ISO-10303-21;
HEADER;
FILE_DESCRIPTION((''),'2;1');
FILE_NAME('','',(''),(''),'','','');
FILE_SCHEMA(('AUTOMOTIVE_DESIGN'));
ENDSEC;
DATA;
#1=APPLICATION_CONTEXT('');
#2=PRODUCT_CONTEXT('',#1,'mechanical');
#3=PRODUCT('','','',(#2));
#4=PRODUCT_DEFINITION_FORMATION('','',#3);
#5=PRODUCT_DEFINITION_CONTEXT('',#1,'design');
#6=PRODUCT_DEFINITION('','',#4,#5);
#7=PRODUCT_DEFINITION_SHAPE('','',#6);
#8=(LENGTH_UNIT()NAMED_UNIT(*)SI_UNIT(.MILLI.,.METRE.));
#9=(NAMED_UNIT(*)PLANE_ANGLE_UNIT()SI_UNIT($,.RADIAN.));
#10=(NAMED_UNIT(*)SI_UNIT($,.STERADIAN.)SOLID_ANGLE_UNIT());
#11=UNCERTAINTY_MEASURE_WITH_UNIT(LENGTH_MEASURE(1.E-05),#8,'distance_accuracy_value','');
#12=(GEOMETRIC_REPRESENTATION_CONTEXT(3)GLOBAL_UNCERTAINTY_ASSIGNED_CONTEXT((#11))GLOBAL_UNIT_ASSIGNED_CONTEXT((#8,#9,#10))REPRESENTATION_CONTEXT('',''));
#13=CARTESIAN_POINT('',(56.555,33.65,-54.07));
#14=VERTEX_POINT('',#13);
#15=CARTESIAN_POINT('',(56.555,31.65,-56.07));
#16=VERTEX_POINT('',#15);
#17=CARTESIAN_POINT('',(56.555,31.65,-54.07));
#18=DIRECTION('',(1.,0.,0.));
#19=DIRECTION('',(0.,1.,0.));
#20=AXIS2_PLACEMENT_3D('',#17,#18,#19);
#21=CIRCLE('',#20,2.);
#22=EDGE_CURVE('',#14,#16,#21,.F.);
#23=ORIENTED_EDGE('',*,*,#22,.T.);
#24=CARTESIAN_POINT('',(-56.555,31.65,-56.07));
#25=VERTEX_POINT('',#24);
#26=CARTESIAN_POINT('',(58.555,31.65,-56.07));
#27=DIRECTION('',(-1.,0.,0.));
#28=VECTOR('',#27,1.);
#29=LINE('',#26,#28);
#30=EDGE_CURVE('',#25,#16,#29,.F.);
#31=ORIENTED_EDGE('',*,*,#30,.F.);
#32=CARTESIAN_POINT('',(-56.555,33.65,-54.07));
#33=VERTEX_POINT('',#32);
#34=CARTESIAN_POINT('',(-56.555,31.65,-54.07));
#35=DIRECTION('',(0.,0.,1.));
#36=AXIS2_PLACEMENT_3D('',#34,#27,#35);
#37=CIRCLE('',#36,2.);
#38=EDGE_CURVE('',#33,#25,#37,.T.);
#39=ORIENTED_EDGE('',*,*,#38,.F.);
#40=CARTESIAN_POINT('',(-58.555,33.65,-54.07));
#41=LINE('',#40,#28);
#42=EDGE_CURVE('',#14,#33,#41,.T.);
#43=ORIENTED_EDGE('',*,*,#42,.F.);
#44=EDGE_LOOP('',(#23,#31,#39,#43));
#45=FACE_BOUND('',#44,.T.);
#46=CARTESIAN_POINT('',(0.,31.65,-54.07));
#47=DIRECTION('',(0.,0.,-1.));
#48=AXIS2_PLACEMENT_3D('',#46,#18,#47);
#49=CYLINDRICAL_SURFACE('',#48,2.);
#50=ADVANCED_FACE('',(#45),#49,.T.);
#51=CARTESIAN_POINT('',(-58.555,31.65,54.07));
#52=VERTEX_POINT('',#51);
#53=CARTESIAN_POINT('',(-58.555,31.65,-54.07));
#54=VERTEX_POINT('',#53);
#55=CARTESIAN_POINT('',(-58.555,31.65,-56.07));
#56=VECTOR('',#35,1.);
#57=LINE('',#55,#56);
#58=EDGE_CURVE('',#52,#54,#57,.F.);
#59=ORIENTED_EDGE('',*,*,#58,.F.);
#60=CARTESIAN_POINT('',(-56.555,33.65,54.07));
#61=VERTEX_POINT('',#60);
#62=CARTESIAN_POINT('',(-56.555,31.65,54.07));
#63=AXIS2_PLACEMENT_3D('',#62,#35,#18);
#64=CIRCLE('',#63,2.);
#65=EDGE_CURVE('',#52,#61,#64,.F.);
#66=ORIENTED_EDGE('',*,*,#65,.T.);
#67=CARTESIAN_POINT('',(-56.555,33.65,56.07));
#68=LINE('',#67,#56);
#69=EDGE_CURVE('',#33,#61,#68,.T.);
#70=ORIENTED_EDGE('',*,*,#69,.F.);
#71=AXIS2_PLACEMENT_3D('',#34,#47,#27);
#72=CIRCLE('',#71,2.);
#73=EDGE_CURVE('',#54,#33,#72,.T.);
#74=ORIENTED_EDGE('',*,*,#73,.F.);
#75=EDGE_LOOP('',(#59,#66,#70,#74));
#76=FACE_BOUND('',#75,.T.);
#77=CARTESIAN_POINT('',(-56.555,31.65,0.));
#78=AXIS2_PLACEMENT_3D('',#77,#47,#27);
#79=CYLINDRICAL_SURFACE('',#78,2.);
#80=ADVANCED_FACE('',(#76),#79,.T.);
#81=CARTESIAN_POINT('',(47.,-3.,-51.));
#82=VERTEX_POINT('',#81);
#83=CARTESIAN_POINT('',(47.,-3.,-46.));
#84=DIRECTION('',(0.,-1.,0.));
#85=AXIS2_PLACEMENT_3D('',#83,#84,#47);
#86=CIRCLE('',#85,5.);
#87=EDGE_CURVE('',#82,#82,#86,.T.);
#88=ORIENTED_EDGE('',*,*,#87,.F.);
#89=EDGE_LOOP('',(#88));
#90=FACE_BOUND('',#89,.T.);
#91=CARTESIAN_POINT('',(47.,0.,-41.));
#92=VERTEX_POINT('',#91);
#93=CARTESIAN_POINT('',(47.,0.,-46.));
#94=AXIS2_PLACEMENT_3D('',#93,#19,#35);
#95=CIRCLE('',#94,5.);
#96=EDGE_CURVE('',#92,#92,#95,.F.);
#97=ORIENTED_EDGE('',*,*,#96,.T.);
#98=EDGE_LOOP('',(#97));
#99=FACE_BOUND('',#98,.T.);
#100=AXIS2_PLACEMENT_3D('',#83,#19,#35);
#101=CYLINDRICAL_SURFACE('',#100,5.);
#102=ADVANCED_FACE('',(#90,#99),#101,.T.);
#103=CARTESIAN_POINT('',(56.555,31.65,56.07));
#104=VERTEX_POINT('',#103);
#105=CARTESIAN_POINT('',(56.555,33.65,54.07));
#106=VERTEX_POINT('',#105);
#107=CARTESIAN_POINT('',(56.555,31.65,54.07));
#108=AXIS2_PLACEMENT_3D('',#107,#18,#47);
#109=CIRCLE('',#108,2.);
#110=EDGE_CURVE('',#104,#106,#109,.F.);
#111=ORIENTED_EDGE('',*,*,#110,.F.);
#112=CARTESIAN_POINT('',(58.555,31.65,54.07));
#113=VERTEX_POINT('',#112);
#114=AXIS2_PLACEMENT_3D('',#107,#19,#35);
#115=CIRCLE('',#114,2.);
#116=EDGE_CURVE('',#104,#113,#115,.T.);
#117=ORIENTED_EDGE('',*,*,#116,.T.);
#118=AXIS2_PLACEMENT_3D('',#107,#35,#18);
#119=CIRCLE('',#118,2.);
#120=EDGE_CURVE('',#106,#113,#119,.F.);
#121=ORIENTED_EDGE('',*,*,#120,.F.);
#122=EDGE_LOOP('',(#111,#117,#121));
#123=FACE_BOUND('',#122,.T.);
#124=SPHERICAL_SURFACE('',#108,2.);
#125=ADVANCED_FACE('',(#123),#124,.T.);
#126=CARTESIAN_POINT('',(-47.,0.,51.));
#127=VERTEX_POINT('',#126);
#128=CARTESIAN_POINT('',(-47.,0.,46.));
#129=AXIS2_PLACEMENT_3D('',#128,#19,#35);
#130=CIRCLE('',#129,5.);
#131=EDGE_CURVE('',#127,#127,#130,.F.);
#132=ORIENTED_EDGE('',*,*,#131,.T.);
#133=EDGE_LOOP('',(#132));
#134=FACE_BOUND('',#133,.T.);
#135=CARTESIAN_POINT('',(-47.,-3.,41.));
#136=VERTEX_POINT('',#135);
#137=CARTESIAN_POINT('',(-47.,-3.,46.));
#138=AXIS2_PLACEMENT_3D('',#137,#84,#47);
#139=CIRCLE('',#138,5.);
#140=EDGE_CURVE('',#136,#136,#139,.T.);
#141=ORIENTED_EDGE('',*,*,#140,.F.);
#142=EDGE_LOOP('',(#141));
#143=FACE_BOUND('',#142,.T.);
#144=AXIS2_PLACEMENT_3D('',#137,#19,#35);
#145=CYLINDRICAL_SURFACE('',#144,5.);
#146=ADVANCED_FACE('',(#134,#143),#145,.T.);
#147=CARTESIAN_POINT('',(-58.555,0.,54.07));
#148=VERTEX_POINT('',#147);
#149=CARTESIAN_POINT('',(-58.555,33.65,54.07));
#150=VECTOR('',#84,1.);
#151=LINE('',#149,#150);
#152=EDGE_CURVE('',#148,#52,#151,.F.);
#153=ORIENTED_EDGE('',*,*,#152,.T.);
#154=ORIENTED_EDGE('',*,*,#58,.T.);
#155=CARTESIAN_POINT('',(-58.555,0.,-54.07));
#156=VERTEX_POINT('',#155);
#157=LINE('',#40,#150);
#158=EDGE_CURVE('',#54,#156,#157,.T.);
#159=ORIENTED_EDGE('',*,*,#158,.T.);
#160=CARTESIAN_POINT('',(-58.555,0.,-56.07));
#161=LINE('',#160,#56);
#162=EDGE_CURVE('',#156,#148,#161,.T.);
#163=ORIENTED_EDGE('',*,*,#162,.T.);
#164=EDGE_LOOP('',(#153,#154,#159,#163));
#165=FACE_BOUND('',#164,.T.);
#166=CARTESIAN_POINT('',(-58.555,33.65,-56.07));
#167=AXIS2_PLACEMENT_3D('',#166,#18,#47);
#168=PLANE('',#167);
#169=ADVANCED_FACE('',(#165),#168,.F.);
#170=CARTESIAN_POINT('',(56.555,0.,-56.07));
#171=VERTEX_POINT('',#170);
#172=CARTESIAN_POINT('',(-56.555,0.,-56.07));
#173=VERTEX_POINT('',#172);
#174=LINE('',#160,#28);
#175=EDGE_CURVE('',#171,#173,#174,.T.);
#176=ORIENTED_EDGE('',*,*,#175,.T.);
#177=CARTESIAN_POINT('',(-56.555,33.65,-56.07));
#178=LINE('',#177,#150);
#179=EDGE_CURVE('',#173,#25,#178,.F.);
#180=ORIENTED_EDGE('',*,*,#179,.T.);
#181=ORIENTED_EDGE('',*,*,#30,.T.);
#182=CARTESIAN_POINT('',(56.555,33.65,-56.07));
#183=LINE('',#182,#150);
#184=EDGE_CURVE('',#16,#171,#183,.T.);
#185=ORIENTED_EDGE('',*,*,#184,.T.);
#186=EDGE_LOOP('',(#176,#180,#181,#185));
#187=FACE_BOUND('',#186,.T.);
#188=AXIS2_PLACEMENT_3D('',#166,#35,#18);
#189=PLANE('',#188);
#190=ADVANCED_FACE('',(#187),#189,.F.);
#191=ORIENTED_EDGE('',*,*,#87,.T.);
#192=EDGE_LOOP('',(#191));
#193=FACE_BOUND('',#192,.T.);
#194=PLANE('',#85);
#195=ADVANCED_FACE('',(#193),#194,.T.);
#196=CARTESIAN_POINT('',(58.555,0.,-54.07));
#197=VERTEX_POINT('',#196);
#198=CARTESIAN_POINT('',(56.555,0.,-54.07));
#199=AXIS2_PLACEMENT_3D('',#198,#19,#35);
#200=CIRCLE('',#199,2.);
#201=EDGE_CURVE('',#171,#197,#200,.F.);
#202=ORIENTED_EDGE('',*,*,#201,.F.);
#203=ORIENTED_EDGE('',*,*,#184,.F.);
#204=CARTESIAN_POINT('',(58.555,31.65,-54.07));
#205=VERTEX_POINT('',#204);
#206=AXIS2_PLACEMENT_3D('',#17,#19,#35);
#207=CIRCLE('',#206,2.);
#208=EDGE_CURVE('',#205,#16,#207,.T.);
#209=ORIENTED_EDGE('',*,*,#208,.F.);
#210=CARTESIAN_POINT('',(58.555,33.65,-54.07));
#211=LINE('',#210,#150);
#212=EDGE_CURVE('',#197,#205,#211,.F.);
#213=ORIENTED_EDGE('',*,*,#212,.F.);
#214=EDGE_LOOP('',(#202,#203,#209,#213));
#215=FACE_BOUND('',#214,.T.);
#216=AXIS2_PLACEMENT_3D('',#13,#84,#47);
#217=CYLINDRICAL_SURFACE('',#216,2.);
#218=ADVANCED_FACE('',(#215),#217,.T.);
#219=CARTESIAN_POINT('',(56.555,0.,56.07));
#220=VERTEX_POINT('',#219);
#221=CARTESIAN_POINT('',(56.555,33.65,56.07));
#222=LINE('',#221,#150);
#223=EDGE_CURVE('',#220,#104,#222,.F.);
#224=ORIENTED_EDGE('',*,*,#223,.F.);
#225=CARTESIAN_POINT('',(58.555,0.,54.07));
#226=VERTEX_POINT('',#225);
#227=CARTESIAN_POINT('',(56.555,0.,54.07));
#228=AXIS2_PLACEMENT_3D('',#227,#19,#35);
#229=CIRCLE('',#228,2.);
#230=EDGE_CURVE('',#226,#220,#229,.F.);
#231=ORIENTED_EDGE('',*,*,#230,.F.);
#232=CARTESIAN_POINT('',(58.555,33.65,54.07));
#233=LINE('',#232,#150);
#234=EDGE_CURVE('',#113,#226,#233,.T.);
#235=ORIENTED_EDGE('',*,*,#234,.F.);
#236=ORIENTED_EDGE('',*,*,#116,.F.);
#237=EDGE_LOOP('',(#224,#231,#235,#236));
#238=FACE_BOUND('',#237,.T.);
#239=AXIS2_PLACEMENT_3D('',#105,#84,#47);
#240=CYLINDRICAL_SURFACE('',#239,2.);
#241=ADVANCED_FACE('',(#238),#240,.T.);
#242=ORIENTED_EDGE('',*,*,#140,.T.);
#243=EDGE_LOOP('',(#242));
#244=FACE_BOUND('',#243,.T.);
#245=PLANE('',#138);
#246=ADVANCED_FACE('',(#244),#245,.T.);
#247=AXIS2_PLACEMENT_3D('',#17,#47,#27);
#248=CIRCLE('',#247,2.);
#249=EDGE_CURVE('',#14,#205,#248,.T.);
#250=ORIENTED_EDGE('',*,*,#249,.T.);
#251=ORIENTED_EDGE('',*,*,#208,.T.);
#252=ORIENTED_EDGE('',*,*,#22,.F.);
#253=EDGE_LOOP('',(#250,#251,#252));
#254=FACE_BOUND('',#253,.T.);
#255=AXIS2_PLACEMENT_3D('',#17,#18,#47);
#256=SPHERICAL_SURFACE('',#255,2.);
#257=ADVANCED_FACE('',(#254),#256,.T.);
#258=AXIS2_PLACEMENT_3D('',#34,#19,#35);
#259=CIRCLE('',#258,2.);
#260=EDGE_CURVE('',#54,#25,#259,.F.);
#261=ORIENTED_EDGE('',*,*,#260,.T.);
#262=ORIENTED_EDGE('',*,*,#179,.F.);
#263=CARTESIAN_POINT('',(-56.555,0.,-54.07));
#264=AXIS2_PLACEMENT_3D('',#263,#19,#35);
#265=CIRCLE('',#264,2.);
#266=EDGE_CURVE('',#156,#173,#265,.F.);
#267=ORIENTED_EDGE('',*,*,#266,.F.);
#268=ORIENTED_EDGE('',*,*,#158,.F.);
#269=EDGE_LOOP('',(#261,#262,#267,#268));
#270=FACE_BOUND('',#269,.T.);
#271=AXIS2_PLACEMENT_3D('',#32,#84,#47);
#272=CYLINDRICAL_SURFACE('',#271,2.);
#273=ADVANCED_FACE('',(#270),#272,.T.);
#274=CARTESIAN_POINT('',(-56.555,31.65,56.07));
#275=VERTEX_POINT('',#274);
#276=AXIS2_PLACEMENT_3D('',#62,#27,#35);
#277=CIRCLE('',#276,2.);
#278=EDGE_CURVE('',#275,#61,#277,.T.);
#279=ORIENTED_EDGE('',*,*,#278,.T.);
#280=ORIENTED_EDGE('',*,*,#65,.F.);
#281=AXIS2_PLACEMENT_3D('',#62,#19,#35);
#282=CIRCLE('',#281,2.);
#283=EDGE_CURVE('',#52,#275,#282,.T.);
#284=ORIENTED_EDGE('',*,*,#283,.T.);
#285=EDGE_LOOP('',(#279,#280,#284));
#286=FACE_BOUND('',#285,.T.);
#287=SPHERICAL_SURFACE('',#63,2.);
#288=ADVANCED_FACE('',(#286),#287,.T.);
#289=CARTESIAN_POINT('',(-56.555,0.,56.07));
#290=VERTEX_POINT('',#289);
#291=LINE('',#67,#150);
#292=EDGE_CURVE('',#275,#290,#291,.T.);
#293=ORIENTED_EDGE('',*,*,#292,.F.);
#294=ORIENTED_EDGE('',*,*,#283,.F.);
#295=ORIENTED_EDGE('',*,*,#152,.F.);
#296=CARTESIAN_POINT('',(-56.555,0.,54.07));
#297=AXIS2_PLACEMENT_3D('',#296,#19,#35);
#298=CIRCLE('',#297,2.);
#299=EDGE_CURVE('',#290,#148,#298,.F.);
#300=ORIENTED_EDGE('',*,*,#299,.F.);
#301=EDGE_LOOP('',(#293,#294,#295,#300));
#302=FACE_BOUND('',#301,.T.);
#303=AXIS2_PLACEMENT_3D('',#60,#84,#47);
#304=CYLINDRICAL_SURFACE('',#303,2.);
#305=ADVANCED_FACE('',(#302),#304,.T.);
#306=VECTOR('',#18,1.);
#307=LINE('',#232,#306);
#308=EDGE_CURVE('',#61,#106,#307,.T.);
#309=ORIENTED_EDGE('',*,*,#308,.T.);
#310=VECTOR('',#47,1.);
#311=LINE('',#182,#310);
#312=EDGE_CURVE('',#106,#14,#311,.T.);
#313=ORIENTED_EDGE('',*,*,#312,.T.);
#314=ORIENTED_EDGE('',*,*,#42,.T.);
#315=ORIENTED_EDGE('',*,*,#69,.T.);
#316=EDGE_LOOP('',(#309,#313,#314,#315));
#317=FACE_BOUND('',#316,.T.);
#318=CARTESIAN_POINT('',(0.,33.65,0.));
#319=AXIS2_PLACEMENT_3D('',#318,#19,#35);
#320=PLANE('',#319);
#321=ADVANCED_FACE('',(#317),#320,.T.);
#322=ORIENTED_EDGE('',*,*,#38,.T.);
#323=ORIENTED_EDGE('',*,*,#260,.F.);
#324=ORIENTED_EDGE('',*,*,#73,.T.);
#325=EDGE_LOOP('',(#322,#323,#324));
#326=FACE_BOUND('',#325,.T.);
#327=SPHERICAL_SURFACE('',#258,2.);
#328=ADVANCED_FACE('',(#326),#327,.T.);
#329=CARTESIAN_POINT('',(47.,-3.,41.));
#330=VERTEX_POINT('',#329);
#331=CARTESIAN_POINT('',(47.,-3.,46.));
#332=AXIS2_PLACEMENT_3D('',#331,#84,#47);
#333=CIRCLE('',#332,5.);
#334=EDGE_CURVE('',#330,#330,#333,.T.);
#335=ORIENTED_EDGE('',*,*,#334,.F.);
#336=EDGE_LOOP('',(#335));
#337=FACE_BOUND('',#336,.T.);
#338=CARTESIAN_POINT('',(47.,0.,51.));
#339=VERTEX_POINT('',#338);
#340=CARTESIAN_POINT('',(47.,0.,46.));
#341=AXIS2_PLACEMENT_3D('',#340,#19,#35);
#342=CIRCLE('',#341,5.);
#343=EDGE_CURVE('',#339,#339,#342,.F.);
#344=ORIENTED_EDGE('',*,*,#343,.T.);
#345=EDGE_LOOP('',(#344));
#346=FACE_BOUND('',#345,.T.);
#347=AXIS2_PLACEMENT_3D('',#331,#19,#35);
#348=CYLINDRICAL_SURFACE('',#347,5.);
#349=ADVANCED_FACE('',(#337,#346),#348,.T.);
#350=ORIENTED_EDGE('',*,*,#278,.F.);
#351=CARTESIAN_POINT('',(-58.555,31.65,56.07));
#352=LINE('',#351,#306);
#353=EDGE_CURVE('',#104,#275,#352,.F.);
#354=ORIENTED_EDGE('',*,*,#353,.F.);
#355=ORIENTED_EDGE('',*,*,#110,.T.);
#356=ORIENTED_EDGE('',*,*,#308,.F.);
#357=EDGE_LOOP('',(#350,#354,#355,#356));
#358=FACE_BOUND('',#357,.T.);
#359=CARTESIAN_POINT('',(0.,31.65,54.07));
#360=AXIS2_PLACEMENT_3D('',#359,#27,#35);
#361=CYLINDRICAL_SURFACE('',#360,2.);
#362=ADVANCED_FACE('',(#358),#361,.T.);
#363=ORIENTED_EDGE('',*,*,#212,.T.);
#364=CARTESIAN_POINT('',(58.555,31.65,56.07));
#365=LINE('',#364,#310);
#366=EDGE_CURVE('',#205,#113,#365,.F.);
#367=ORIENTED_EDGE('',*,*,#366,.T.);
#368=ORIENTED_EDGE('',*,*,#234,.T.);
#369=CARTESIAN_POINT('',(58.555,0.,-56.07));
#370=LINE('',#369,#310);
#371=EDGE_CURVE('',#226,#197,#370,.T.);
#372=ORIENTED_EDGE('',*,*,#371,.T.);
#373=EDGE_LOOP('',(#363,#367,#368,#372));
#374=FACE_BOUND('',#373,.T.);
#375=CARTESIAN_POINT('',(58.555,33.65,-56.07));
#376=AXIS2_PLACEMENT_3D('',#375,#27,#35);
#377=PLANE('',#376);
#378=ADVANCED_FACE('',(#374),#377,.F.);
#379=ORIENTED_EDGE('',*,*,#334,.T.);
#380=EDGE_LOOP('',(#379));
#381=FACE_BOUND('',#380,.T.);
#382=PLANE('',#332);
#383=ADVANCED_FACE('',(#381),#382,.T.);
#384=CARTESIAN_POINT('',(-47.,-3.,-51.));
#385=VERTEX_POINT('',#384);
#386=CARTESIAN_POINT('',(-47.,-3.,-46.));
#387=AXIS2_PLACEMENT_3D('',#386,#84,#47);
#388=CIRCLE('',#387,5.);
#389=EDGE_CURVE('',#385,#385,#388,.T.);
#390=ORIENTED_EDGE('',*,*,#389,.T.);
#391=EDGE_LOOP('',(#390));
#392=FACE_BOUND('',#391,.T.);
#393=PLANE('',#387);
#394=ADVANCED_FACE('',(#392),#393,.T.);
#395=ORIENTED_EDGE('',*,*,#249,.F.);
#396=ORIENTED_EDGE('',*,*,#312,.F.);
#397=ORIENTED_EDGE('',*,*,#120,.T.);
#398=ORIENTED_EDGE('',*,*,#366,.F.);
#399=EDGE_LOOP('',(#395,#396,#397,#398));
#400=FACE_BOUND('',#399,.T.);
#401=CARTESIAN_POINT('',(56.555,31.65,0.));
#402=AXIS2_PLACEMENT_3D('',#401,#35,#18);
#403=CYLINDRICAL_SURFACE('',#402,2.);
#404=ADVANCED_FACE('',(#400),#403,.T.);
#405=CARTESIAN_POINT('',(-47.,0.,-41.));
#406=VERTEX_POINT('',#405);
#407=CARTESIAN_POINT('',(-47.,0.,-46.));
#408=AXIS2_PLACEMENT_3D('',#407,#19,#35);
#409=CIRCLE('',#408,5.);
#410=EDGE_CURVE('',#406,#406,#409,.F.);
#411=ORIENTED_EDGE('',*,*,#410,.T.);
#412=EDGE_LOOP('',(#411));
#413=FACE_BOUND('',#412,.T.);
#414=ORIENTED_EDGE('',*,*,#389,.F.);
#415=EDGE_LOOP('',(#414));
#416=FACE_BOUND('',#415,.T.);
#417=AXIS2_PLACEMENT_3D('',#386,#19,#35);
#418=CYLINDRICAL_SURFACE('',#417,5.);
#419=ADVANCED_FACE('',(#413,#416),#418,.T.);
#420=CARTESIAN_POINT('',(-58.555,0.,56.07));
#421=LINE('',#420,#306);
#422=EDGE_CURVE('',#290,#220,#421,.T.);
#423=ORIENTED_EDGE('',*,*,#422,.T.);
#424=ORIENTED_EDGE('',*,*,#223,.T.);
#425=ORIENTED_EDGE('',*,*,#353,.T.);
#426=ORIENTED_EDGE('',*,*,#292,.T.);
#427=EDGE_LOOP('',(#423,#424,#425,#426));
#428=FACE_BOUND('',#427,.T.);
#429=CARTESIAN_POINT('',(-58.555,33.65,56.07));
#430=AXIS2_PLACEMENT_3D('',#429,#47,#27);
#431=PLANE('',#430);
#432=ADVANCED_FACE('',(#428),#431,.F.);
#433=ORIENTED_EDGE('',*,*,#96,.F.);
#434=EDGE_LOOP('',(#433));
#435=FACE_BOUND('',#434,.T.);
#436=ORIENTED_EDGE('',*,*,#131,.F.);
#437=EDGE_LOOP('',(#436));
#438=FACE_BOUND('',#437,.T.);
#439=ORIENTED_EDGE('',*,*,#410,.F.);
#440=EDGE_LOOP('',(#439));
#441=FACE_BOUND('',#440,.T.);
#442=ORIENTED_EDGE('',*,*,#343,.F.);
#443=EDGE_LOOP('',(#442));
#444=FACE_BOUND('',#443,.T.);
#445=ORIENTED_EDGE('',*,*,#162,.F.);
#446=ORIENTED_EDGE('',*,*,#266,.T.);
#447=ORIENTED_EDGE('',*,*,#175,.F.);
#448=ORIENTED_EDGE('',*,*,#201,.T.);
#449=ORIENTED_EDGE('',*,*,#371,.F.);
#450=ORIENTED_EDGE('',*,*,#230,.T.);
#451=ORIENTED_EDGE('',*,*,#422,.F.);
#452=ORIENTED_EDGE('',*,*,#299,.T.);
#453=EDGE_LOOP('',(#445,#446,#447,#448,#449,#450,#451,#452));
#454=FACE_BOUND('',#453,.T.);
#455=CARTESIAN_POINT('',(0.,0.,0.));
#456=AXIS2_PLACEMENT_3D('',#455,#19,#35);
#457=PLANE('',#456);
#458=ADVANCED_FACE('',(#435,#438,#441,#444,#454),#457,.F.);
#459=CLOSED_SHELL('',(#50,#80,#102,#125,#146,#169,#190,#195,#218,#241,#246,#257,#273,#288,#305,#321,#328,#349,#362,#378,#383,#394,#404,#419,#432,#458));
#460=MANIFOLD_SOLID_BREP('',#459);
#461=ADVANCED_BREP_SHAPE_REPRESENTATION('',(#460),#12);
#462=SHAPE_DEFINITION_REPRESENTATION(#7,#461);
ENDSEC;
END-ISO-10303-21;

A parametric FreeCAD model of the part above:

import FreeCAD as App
import Part
import Sketcher


def edges_at(feature, points):
    """Names of the edges that pass closest to the given points."""
    edges = feature.Shape.Edges
    near = lambda p: min(range(len(edges)), key=lambda i: edges[i].distToShape(Part.Vertex(*p))[0])
    return sorted({f"Edge{near(p) + 1}" for p in points})

doc = App.newDocument("Part")
body = doc.addObject("PartDesign::Body", "Body")

# Sketch on XZ plane
sketch1 = body.newObject("Sketcher::SketchObject", "Sketch")
sketch1.AttachmentSupport = (doc.getObject("XZ_Plane"), [""])
sketch1.MapMode = "FlatFace"
sketch1.addGeometry(Part.LineSegment(App.Vector(-59, -56, 0), App.Vector(-59, 56, 0)), False)
sketch1.addGeometry(Part.LineSegment(App.Vector(-59, 56, 0), App.Vector(59, 56, 0)), False)
sketch1.addGeometry(Part.LineSegment(App.Vector(59, 56, 0), App.Vector(59, -56, 0)), False)
sketch1.addGeometry(Part.LineSegment(App.Vector(59, -56, 0), App.Vector(-59, -56, 0)), False)
sketch1.addConstraint(Sketcher.Constraint("Coincident", 0, 2, 1, 1))
sketch1.addConstraint(Sketcher.Constraint("Coincident", 1, 2, 2, 1))
sketch1.addConstraint(Sketcher.Constraint("Coincident", 2, 2, 3, 1))
sketch1.addConstraint(Sketcher.Constraint("Coincident", 3, 2, 0, 1))
sketch1.addConstraint(Sketcher.Constraint("Vertical", 0))
sketch1.addConstraint(Sketcher.Constraint("Horizontal", 1))
sketch1.addConstraint(Sketcher.Constraint("Vertical", 2))
sketch1.addConstraint(Sketcher.Constraint("Horizontal", 3))
sketch1.addConstraint(Sketcher.Constraint("Symmetric", 0, 2, 2, 2, -1, 1))
sketch1.addConstraint(Sketcher.Constraint("DistanceX", 1, 1, 1, 2, 117.11))
sketch1.addConstraint(Sketcher.Constraint("DistanceY", 0, 1, 0, 2, 112.14))
pad1 = body.newObject("PartDesign::Pad", "Pad")
pad1.Profile = sketch1
pad1.Length = 33.65
pad1.Reversed = True

# Sketch on XZ plane
sketch2 = body.newObject("Sketcher::SketchObject", "Sketch001")
sketch2.AttachmentSupport = (doc.getObject("XZ_Plane"), [""])
sketch2.MapMode = "FlatFace"
sketch2.addGeometry(Part.Circle(App.Vector(-47, 46, 0), App.Vector(0, 0, 1), 5), False)
sketch2.addGeometry(Part.Circle(App.Vector(47, 46, 0), App.Vector(0, 0, 1), 5), False)
sketch2.addGeometry(Part.Circle(App.Vector(47, -46, 0), App.Vector(0, 0, 1), 5), False)
sketch2.addGeometry(Part.Circle(App.Vector(-47, -46, 0), App.Vector(0, 0, 1), 5), False)
sketch2.addConstraint(Sketcher.Constraint("Equal", 0, 1))
sketch2.addConstraint(Sketcher.Constraint("Equal", 1, 2))
sketch2.addConstraint(Sketcher.Constraint("Equal", 2, 3))
sketch2.addConstraint(Sketcher.Constraint("Symmetric", 0, 3, 2, 3, -1, 1))
sketch2.addConstraint(Sketcher.Constraint("Symmetric", 1, 3, 3, 3, -1, 1))
sketch2.addConstraint(Sketcher.Constraint("Symmetric", 0, 3, 1, 3, -2))
sketch2.addConstraint(Sketcher.Constraint("Diameter", 0, 10.0))
sketch2.addConstraint(Sketcher.Constraint("DistanceX", 0, 3, -1, 1, 47.0))
sketch2.addConstraint(Sketcher.Constraint("DistanceY", -1, 1, 0, 3, 46.0))
pad2 = body.newObject("PartDesign::Pad", "Pad001")
pad2.Profile = sketch2
pad2.Length = 3
doc.recompute()

fillet = body.newObject("PartDesign::Fillet", "Fillet")
fillet.Base = (pad2, edges_at(pad2, [
    (-58.555, 33.65, 0),
    (0, 33.65, 56.07),
    (58.555, 33.65, 0),
    (58.555, 16.825, 56.07),
    (-58.555, 16.825, 56.07),
    (-58.555, 16.825, -56.07),
    (58.555, 16.825, -56.07),
    (0, 33.65, -56.07),
]))
fillet.Radius = 2

doc.recompute()
